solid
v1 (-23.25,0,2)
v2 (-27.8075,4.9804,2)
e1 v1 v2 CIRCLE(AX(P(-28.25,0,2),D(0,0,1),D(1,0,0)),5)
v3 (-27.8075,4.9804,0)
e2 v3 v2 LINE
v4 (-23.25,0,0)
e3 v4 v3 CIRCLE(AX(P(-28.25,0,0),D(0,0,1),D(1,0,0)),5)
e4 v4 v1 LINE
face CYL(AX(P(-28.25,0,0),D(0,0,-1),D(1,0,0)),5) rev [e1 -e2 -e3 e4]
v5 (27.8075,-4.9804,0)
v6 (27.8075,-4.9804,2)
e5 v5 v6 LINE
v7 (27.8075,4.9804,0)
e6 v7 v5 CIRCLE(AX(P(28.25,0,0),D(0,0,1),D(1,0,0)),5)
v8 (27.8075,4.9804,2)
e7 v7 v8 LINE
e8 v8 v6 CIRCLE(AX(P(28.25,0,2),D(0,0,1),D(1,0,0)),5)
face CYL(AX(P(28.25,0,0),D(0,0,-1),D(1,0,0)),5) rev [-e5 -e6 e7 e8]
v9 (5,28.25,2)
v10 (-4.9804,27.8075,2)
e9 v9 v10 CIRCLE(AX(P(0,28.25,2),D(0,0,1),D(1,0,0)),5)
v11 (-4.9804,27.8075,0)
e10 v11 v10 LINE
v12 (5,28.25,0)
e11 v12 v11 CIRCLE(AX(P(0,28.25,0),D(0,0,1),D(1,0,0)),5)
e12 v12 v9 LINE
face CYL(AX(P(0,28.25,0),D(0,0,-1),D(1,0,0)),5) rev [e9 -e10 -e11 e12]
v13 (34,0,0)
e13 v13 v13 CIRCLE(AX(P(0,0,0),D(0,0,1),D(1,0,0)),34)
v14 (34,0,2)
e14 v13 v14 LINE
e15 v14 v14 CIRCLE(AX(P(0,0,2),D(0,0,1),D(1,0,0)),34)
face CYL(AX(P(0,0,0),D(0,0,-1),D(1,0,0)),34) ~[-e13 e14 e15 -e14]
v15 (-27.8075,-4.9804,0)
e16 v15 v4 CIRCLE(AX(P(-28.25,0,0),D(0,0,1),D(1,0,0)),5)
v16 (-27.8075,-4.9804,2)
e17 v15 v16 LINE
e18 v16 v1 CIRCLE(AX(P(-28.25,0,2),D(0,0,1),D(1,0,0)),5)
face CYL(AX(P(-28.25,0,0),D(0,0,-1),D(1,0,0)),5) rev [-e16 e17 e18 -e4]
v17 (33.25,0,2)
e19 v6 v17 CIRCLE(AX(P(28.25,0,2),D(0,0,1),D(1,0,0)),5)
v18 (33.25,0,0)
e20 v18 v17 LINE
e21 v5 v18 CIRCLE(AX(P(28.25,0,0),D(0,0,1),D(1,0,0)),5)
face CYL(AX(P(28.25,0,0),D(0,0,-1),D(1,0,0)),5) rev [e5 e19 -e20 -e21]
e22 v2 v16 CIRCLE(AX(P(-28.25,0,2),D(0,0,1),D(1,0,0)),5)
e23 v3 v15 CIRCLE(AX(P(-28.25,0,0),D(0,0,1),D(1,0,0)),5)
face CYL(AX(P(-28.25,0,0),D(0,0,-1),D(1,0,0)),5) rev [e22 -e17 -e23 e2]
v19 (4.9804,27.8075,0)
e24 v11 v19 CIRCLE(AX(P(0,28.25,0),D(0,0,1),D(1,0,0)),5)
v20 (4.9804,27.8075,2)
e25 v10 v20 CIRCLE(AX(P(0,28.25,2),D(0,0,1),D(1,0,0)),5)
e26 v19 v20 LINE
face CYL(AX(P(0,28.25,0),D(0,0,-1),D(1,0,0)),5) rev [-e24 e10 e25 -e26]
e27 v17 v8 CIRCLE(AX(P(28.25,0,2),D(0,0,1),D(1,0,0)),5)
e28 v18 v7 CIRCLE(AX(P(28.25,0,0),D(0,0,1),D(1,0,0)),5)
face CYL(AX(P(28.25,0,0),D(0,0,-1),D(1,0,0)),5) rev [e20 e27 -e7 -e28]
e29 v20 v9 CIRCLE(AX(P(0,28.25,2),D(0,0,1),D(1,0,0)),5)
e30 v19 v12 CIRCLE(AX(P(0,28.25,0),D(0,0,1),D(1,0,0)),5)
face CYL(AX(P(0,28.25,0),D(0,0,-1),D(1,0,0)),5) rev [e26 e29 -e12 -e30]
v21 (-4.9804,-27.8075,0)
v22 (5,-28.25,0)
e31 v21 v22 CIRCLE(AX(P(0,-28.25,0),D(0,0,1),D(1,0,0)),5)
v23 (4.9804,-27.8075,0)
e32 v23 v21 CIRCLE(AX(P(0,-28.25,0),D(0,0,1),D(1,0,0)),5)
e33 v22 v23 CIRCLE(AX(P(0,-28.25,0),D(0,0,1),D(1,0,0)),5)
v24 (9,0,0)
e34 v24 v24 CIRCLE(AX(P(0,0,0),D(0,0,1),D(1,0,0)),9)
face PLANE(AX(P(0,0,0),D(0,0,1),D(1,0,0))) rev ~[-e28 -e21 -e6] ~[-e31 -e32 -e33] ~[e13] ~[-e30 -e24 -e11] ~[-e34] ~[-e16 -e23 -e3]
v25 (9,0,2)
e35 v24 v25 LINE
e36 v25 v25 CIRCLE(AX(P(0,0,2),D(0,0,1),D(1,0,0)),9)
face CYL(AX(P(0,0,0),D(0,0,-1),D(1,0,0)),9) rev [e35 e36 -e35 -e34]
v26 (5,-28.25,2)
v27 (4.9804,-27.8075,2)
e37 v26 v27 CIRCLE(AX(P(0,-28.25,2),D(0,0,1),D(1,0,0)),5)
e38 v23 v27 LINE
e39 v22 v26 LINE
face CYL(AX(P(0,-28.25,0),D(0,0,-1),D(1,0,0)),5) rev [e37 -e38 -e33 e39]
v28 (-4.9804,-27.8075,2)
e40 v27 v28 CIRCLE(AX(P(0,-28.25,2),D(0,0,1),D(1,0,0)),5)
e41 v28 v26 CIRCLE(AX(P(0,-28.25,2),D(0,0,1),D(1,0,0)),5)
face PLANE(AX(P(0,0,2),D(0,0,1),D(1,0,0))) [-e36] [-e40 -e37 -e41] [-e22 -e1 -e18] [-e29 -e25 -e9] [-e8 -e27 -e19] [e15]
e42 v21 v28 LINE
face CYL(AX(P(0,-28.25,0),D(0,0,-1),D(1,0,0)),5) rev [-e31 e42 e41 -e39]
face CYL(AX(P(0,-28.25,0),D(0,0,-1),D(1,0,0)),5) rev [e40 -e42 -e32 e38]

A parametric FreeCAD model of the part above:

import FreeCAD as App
import Part
import Sketcher

doc = App.newDocument("Part")
body = doc.addObject("PartDesign::Body", "Body")

# Sketch on XY plane
sketch1 = doc.addObject("Sketcher::SketchObject", "Sketch")
body.addObject(sketch1)
sketch1.AttachmentSupport = (doc.XY_Plane, [""])
sketch1.MapMode = "FlatFace"
sketch1.addGeometry([
    Part.Circle(App.Vector(0, 0, 0), App.Vector(0, 0, 1), 34),  # 0
    Part.Circle(App.Vector(0, -28, 0), App.Vector(0, 0, 1), 5),  # 1
    Part.Circle(App.Vector(-28, 0, 0), App.Vector(0, 0, 1), 5),  # 2
    Part.Circle(App.Vector(0, 0, 0), App.Vector(0, 0, 1), 9),  # 3
    Part.Circle(App.Vector(28, 0, 0), App.Vector(0, 0, 1), 5),  # 4
    Part.Circle(App.Vector(0, 28, 0), App.Vector(0, 0, 1), 5),  # 5
], False)
sketch1.addConstraint([
    Sketcher.Constraint("Coincident", 0, 3, -1, 1),
    Sketcher.Constraint("Coincident", 3, 3, -1, 1),
    Sketcher.Constraint("Equal", 1, 2),
    Sketcher.Constraint("Equal", 2, 4),
    Sketcher.Constraint("Equal", 4, 5),
    Sketcher.Constraint("Symmetric", 2, 3, 4, 3, -1, 1),
    Sketcher.Constraint("Symmetric", 1, 3, 5, 3, -1, 1),
    Sketcher.Constraint("PointOnObject", 1, 3, -2),
    Sketcher.Constraint("PointOnObject", 2, 3, -1),
    Sketcher.Constraint("Diameter", 0, 68.0),
    Sketcher.Constraint("Diameter", 1, 10.0),
    Sketcher.Constraint("Diameter", 3, 18.0),
    Sketcher.Constraint("DistanceX", 2, 3, 4, 3, 56.5),
    Sketcher.Constraint("DistanceY", 1, 3, 5, 3, 56.5),
])
pad1 = doc.addObject("PartDesign::Pad", "Pad")
body.addObject(pad1)
pad1.Profile = sketch1
pad1.Length = 2

doc.recompute()
